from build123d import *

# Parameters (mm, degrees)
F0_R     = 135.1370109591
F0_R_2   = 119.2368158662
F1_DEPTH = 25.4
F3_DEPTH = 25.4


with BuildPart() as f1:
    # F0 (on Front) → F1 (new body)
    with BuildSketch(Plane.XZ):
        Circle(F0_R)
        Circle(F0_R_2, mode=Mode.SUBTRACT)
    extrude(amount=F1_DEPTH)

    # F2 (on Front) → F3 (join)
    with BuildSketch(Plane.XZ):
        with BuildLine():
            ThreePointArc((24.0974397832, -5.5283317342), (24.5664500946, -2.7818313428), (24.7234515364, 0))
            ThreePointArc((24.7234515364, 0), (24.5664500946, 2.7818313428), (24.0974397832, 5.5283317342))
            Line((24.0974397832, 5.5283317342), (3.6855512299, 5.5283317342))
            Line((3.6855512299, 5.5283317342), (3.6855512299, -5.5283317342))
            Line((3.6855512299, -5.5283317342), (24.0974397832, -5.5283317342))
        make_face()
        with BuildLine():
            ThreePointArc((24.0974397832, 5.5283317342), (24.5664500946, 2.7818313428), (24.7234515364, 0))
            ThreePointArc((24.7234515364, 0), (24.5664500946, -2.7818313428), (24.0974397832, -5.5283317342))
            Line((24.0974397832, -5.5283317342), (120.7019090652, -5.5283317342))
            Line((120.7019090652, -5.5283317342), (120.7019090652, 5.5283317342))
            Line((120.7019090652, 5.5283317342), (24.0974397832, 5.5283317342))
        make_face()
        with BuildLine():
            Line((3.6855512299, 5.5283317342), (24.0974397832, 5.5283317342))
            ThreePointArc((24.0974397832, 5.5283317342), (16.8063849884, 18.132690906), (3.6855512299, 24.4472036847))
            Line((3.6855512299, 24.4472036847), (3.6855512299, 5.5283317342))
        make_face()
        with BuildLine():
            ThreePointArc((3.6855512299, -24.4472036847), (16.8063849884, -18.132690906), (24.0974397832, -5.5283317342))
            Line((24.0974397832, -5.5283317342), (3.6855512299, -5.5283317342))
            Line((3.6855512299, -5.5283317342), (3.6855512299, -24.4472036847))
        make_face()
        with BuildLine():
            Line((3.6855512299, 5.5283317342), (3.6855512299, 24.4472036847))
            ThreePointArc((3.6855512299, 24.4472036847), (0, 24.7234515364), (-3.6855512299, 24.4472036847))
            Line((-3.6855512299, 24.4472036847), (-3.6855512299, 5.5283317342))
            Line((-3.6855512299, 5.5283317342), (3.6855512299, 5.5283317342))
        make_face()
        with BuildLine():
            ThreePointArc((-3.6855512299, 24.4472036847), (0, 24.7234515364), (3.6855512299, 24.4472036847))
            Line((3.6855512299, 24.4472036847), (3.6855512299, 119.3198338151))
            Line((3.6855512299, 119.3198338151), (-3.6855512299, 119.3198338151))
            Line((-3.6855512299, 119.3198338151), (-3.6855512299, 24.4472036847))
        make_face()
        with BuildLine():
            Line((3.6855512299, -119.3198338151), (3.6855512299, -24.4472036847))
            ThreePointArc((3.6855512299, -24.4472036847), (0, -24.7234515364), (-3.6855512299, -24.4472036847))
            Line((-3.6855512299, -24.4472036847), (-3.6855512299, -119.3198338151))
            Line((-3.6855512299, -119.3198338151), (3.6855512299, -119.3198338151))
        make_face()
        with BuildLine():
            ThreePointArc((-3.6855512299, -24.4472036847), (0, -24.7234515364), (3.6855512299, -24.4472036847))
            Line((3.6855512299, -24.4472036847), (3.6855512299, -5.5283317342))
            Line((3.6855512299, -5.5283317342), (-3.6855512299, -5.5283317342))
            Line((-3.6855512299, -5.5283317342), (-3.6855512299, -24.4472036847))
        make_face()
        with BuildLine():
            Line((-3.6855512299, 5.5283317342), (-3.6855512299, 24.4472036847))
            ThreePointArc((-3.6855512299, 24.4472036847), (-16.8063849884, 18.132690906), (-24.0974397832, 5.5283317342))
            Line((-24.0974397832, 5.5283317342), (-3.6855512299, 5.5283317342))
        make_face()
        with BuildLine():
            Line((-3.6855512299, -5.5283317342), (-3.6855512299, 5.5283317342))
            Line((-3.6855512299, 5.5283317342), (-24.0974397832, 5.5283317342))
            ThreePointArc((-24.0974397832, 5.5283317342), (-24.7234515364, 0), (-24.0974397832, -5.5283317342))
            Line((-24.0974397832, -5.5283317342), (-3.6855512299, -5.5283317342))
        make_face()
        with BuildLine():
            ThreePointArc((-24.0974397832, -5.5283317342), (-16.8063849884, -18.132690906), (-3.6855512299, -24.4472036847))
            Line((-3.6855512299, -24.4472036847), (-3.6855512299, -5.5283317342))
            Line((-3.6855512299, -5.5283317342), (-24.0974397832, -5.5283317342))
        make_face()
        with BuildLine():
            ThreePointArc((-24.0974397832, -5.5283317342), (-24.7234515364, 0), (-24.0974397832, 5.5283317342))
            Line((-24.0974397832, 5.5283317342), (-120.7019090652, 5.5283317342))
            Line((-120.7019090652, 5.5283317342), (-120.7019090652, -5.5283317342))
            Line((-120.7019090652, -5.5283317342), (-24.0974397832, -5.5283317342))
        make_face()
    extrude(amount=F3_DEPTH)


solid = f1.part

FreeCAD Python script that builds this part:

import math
import FreeCAD as App
import Part
import Sketcher
Q = App.Units.Quantity

doc = App.newDocument("Part")
body = doc.addObject("PartDesign::Body", "Body")

# Sketch on XZ plane
sketch1 = body.newObject("Sketcher::SketchObject", "Sketch")
sketch1.AttachmentSupport = (doc.getObject("XZ_Plane"), [""])
sketch1.MapMode = "FlatFace"
sketch1.addGeometry([
    Part.Circle(App.Vector(0, 0, 0), App.Vector(0, 0, 1), 135),
    Part.Circle(App.Vector(0, 0, 0), App.Vector(0, 0, 1), 119),
], False)
sketch1.addConstraint([
    Sketcher.Constraint("Coincident", 0, 3, -1, 1),
    Sketcher.Constraint("Coincident", 1, 3, -1, 1),
    Sketcher.Constraint("Diameter", 0, Q("270.274022 mm")),
    Sketcher.Constraint("Diameter", 1, Q("238.473632 mm")),
])
pad1 = body.newObject("PartDesign::Pad", "Pad")
pad1.Profile = sketch1
pad1.Length = Q("1 in")

# Sketch on XZ plane
sketch2 = body.newObject("Sketcher::SketchObject", "Sketch001")
sketch2.AttachmentSupport = (doc.getObject("XZ_Plane"), [""])
sketch2.MapMode = "FlatFace"
sketch2.addGeometry([
    Part.ArcOfCircle(Part.Circle(App.Vector(0, 0, 0), App.Vector(0, 0, 1), 25), math.radians(-167), math.radians(-99)),  # 0
    Part.LineSegment(App.Vector(-4, -24, 0), App.Vector(-4, -119, 0)),  # 1
    Part.LineSegment(App.Vector(-4, -119, 0), App.Vector(4, -119, 0)),  # 2
    Part.LineSegment(App.Vector(4, -119, 0), App.Vector(4, -24, 0)),  # 3
    Part.ArcOfCircle(Part.Circle(App.Vector(0, 0, 0), App.Vector(0, 0, 1), 25), math.radians(-81), math.radians(-13)),  # 4
    Part.LineSegment(App.Vector(24, -6, 0), App.Vector(121, -6, 0)),  # 5
    Part.LineSegment(App.Vector(121, -6, 0), App.Vector(121, 6, 0)),  # 6
    Part.LineSegment(App.Vector(121, 6, 0), App.Vector(24, 6, 0)),  # 7
    Part.ArcOfCircle(Part.Circle(App.Vector(0, 0, 0), App.Vector(0, 0, 1), 25), math.radians(13), math.radians(81)),  # 8
    Part.LineSegment(App.Vector(4, 24, 0), App.Vector(4, 119, 0)),  # 9
    Part.LineSegment(App.Vector(4, 119, 0), App.Vector(-4, 119, 0)),  # 10
    Part.LineSegment(App.Vector(-4, 119, 0), App.Vector(-4, 24, 0)),  # 11
    Part.ArcOfCircle(Part.Circle(App.Vector(0, 0, 0), App.Vector(0, 0, 1), 25), math.radians(99), math.radians(167)),  # 12
    Part.LineSegment(App.Vector(-24, 6, 0), App.Vector(-121, 6, 0)),  # 13
    Part.LineSegment(App.Vector(-121, 6, 0), App.Vector(-121, -6, 0)),  # 14
    Part.LineSegment(App.Vector(-121, -6, 0), App.Vector(-24, -6, 0)),  # 15
    Part.LineSegment(App.Vector(4, -6, 0), App.Vector(-4, -6, 0)),  # 16
    Part.LineSegment(App.Vector(-4, -6, 0), App.Vector(-4, 6, 0)),  # 17
    Part.LineSegment(App.Vector(-4, 6, 0), App.Vector(4, 6, 0)),  # 18
    Part.LineSegment(App.Vector(4, 6, 0), App.Vector(4, -6, 0)),  # 19
], False)
sketch2.addConstraint([
    Sketcher.Constraint("Coincident", 0, 2, 1, 1),
    Sketcher.Constraint("Coincident", 1, 2, 2, 1),
    Sketcher.Constraint("Coincident", 2, 2, 3, 1),
    Sketcher.Constraint("Coincident", 3, 2, 4, 1),
    Sketcher.Constraint("Coincident", 4, 2, 5, 1),
    Sketcher.Constraint("Coincident", 5, 2, 6, 1),
    Sketcher.Constraint("Coincident", 6, 2, 7, 1),
    Sketcher.Constraint("Coincident", 7, 2, 8, 1),
    Sketcher.Constraint("Coincident", 8, 2, 9, 1),
    Sketcher.Constraint("Coincident", 9, 2, 10, 1),
    Sketcher.Constraint("Coincident", 10, 2, 11, 1),
    Sketcher.Constraint("Coincident", 11, 2, 12, 1),
    Sketcher.Constraint("Coincident", 12, 2, 13, 1),
    Sketcher.Constraint("Coincident", 13, 2, 14, 1),
    Sketcher.Constraint("Coincident", 14, 2, 15, 1),
    Sketcher.Constraint("Coincident", 15, 2, 0, 1),
    Sketcher.Constraint("Coincident", 16, 2, 17, 1),
    Sketcher.Constraint("Coincident", 17, 2, 18, 1),
    Sketcher.Constraint("Coincident", 18, 2, 19, 1),
    Sketcher.Constraint("Coincident", 19, 2, 16, 1),
    Sketcher.Constraint("Vertical", 1),
    Sketcher.Constraint("Horizontal", 2),
    Sketcher.Constraint("Vertical", 3),
    Sketcher.Constraint("Horizontal", 5),
    Sketcher.Constraint("Vertical", 6),
    Sketcher.Constraint("Horizontal", 7),
    Sketcher.Constraint("Vertical", 9),
    Sketcher.Constraint("Horizontal", 10),
    Sketcher.Constraint("Vertical", 11),
    Sketcher.Constraint("Horizontal", 13),
    Sketcher.Constraint("Vertical", 14),
    Sketcher.Constraint("Horizontal", 15),
    Sketcher.Constraint("Horizontal", 16),
    Sketcher.Constraint("Vertical", 17),
    Sketcher.Constraint("Horizontal", 18),
    Sketcher.Constraint("Vertical", 19),
    Sketcher.Constraint("Coincident", 0, 3, -1, 1),
    Sketcher.Constraint("Coincident", 4, 3, -1, 1),
    Sketcher.Constraint("Coincident", 8, 3, -1, 1),
    Sketcher.Constraint("Coincident", 12, 3, -1, 1),
    Sketcher.Constraint("Equal", 0, 4),
    Sketcher.Constraint("Equal", 4, 8),
    Sketcher.Constraint("Equal", 8, 12),
    Sketcher.Constraint("Symmetric", 1, 2, 9, 2, -1, 1),
    Sketcher.Constraint("Symmetric", 5, 2, 13, 2, -1, 1),
    Sketcher.Constraint("Symmetric", 16, 2, 18, 2, -1, 1),
    Sketcher.Constraint("Horizontal", 0, 2, 3, 2),
    Sketcher.Constraint("Horizontal", 8, 2, 11, 2),
    Sketcher.Constraint("Horizontal", 7, 2, 12, 2),
    Sketcher.Constraint("Horizontal", 5, 2, 14, 2),
    Sketcher.Constraint("Horizontal", 15, 2, 16, 2),
    Sketcher.Constraint("Vertical", 11, 2, 16, 2),
    Sketcher.Constraint("Radius", 0, Q("24.723452 mm")),
    Sketcher.Constraint("DistanceX", 5, 1, 5, 2, Q("96.604469 mm")),
    Sketcher.Constraint("DistanceY", 1, 2, 1, 1, Q("94.87263 mm")),
    Sketcher.Constraint("DistanceX", 2, 1, 2, 2, Q("7.371102 mm")),
    Sketcher.Constraint("DistanceY", 6, 1, 6, 2, Q("11.056663 mm")),
])
pad2 = body.newObject("PartDesign::Pad", "Pad001")
pad2.Profile = sketch2
pad2.Length = Q("1 in")

doc.recompute()
